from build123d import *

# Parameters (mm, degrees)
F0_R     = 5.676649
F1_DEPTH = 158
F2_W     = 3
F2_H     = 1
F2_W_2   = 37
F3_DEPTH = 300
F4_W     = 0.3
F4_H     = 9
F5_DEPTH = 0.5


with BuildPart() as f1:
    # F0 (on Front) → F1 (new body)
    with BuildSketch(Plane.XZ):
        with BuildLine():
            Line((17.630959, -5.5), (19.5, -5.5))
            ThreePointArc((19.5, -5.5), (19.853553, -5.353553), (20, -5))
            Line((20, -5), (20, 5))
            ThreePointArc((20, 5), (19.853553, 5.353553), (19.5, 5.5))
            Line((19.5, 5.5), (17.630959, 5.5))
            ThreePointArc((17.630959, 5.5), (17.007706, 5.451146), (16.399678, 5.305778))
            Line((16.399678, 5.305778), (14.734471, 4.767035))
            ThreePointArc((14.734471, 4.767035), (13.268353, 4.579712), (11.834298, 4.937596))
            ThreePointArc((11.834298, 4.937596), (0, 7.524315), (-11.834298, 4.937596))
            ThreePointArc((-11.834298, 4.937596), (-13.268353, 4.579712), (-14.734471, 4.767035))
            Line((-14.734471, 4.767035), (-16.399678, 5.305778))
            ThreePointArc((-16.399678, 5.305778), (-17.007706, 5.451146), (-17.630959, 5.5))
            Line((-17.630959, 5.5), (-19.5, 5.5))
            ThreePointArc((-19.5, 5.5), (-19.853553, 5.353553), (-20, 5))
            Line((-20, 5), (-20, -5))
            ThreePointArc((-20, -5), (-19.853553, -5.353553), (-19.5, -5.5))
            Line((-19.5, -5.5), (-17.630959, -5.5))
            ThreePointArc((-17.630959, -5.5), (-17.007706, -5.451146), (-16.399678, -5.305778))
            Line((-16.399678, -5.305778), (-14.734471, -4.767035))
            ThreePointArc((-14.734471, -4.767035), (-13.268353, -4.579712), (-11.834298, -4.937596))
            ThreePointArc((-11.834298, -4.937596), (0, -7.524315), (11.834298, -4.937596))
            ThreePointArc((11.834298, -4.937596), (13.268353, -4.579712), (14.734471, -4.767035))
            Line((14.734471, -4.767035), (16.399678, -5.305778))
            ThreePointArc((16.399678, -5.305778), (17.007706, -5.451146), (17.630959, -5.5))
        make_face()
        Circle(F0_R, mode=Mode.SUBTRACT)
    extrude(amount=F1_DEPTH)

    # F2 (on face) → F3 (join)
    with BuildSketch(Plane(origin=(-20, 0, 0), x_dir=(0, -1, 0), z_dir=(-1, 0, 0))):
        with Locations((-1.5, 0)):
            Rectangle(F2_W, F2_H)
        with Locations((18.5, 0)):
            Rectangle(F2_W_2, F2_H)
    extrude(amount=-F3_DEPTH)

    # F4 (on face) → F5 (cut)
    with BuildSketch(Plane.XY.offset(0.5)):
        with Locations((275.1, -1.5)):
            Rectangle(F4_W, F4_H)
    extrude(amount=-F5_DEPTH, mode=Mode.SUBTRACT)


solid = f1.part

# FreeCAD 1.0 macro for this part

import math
import FreeCAD as App
import Part
import Sketcher

doc = App.newDocument("Part")
body = doc.addObject("PartDesign::Body", "Body")

# Sketch on XZ plane
sketch1 = body.newObject("Sketcher::SketchObject", "Sketch")
sketch1.AttachmentSupport = (doc.getObject("XZ_Plane"), [""])
sketch1.MapMode = "FlatFace"
sketch1.addGeometry([
    Part.LineSegment(App.Vector(17.6, -5.5, 0), App.Vector(19.5, -5.5, 0)),  # 0
    Part.ArcOfCircle(Part.Circle(App.Vector(19.5, -5, 0), App.Vector(0, 0, 1), 0.5), math.radians(-90), math.radians(0)),  # 1
    Part.LineSegment(App.Vector(20, -5, 0), App.Vector(20, 5, 0)),  # 2
    Part.ArcOfCircle(Part.Circle(App.Vector(19.5, 5, 0), App.Vector(0, 0, 1), 0.5), math.radians(0), math.radians(90)),  # 3
    Part.LineSegment(App.Vector(19.5, 5.5, 0), App.Vector(17.6, 5.5, 0)),  # 4
    Part.ArcOfCircle(Part.Circle(App.Vector(17.6, 1.5, 0), App.Vector(0, 0, 1), 4), math.radians(90), math.radians(107.93)),  # 5
    Part.LineSegment(App.Vector(16.4, 5.3, 0), App.Vector(14.7, 4.8, 0)),  # 6
    Part.ArcOfCircle(Part.Circle(App.Vector(13.5, 8.6, 0), App.Vector(0, 0, 1), 4), math.radians(-115), math.radians(-72)),  # 7
    Part.ArcOfCircle(Part.Circle(App.Vector(0, -20.8, 0), App.Vector(0, 0, 1), 28.4), math.radians(65), math.radians(115)),  # 8
    Part.ArcOfCircle(Part.Circle(App.Vector(-13.5, 8.6, 0), App.Vector(0, 0, 1), 4), math.radians(-108), math.radians(-65)),  # 9
    Part.LineSegment(App.Vector(-14.7, 4.8, 0), App.Vector(-16.4, 5.3, 0)),  # 10
    Part.ArcOfCircle(Part.Circle(App.Vector(-17.6, 1.5, 0), App.Vector(0, 0, 1), 4), math.radians(72.07), math.radians(90)),  # 11
    Part.LineSegment(App.Vector(-17.6, 5.5, 0), App.Vector(-19.5, 5.5, 0)),  # 12
    Part.ArcOfCircle(Part.Circle(App.Vector(-19.5, 5, 0), App.Vector(0, 0, 1), 0.5), math.radians(90), math.radians(180)),  # 13
    Part.LineSegment(App.Vector(-20, 5, 0), App.Vector(-20, -5, 0)),  # 14
    Part.ArcOfCircle(Part.Circle(App.Vector(-19.5, -5, 0), App.Vector(0, 0, 1), 0.5), math.radians(-180), math.radians(-90)),  # 15
    Part.LineSegment(App.Vector(-19.5, -5.5, 0), App.Vector(-17.6, -5.5, 0)),  # 16
    Part.ArcOfCircle(Part.Circle(App.Vector(-17.6, -1.5, 0), App.Vector(0, 0, 1), 4), math.radians(-90), math.radians(-72.07)),  # 17
    Part.LineSegment(App.Vector(-16.4, -5.3, 0), App.Vector(-14.7, -4.8, 0)),  # 18
    Part.ArcOfCircle(Part.Circle(App.Vector(-13.5, -8.6, 0), App.Vector(0, 0, 1), 4), math.radians(65), math.radians(108)),  # 19
    Part.ArcOfCircle(Part.Circle(App.Vector(0, 20.8, 0), App.Vector(0, 0, 1), 28.4), math.radians(-115), math.radians(-65)),  # 20
    Part.ArcOfCircle(Part.Circle(App.Vector(13.5, -8.6, 0), App.Vector(0, 0, 1), 4), math.radians(72), math.radians(115)),  # 21
    Part.LineSegment(App.Vector(14.7, -4.8, 0), App.Vector(16.4, -5.3, 0)),  # 22
    Part.ArcOfCircle(Part.Circle(App.Vector(17.6, -1.5, 0), App.Vector(0, 0, 1), 4), math.radians(-107.93), math.radians(-90)),  # 23
    Part.Circle(App.Vector(0, 0, 0), App.Vector(0, 0, 1), 5.7),  # 24
], False)
sketch1.addConstraint([
    Sketcher.Constraint("Coincident", 0, 2, 1, 1),
    Sketcher.Constraint("Coincident", 1, 2, 2, 1),
    Sketcher.Constraint("Coincident", 2, 2, 3, 1),
    Sketcher.Constraint("Coincident", 3, 2, 4, 1),
    Sketcher.Constraint("Tangent", 4, 2, 5, 1),
    Sketcher.Constraint("Tangent", 5, 2, 6, 1),
    Sketcher.Constraint("Tangent", 6, 2, 7, 2),
    Sketcher.Constraint("Tangent", 7, 1, 8, 1),
    Sketcher.Constraint("Tangent", 8, 2, 9, 2),
    Sketcher.Constraint("Tangent", 9, 1, 10, 1),
    Sketcher.Constraint("Tangent", 10, 2, 11, 1),
    Sketcher.Constraint("Tangent", 11, 2, 12, 1),
    Sketcher.Constraint("Coincident", 12, 2, 13, 1),
    Sketcher.Constraint("Coincident", 13, 2, 14, 1),
    Sketcher.Constraint("Coincident", 14, 2, 15, 1),
    Sketcher.Constraint("Coincident", 15, 2, 16, 1),
    Sketcher.Constraint("Tangent", 16, 2, 17, 1),
    Sketcher.Constraint("Tangent", 17, 2, 18, 1),
    Sketcher.Constraint("Tangent", 18, 2, 19, 2),
    Sketcher.Constraint("Tangent", 19, 1, 20, 1),
    Sketcher.Constraint("Tangent", 20, 2, 21, 2),
    Sketcher.Constraint("Tangent", 21, 1, 22, 1),
    Sketcher.Constraint("Tangent", 22, 2, 23, 1),
    Sketcher.Constraint("Tangent", 23, 2, 0, 1),
    Sketcher.Constraint("Horizontal", 0),
    Sketcher.Constraint("Vertical", 2),
    Sketcher.Constraint("Horizontal", 4),
    Sketcher.Constraint("Horizontal", 12),
    Sketcher.Constraint("Vertical", 14),
    Sketcher.Constraint("Horizontal", 16),
    Sketcher.Constraint("Coincident", 24, 3, -1, 1),
    Sketcher.Constraint("Equal", 1, 3),
    Sketcher.Constraint("Equal", 7, 9),
    Sketcher.Constraint("Equal", 5, 11),
    Sketcher.Constraint("Equal", 3, 13),
    Sketcher.Constraint("Equal", 13, 15),
    Sketcher.Constraint("Equal", 11, 17),
    Sketcher.Constraint("Equal", 9, 19),
    Sketcher.Constraint("Equal", 8, 20),
    Sketcher.Constraint("Equal", 19, 21),
    Sketcher.Constraint("Equal", 17, 23),
    Sketcher.Constraint("Symmetric", 1, 3, 13, 3, -1, 1),
    Sketcher.Constraint("Symmetric", 5, 3, 17, 3, -1, 1),
    Sketcher.Constraint("Symmetric", 7, 3, 19, 3, -1, 1),
    Sketcher.Constraint("Symmetric", 9, 3, 21, 3, -1, 1),
    Sketcher.Constraint("Symmetric", 7, 3, 9, 3, -2),
    Sketcher.Constraint("Symmetric", 5, 3, 11, 3, -2),
    Sketcher.Constraint("Parallel", 10, 22),
    Sketcher.Constraint("Horizontal", 15, 3, 1, 2),
    Sketcher.Constraint("Horizontal", 13, 3, 2, 2),
    Sketcher.Constraint("Horizontal", 2, 2, 13, 2),
    Sketcher.Constraint("Horizontal", 1, 2, 14, 2),
    Sketcher.Constraint("Vertical", 3, 3, 0, 2),
    Sketcher.Constraint("Vertical", 0, 2, 3, 2),
    Sketcher.Constraint("Vertical", 15, 3, 12, 2),
    Sketcher.Constraint("Vertical", 12, 2, 15, 2),
    Sketcher.Constraint("Radius", 1, 0.500001),
    Sketcher.Constraint("DistanceY", 2, 1, 2, 2, 10.0),
    Sketcher.Constraint("DistanceX", -1, 1, 1, 2, 20.0),
    Sketcher.Constraint("Radius", 8, 28.36445),
    Sketcher.Constraint("Diameter", 24, 11.353298),
    Sketcher.Constraint("Radius", 5, 4.000005),
    Sketcher.Constraint("Radius", 7, 3.999995),
    Sketcher.Constraint("DistanceX", 0, 1, 0, 2, 1.869041),
    Sketcher.Constraint("DistanceX", 8, 2, -1, 1, 11.834298),
    Sketcher.Constraint("DistanceY", 5, 3, 7, 1, 3.437601),
])
pad1 = body.newObject("PartDesign::Pad", "Pad")
pad1.Profile = sketch1
pad1.Length = 158

# Sketch on YZ plane
sketch2 = body.newObject("Sketcher::SketchObject", "Sketch001")
sketch2.AttachmentSupport = (doc.getObject("YZ_Plane"), [""])
sketch2.MapMode = "FlatFace"
sketch2.AttachmentOffset = App.Placement(App.Vector(0, 0, -20), App.Rotation())
sketch2.addGeometry([
    Part.LineSegment(App.Vector(3, 0.5, 0), App.Vector(3, -0.5, 0)),
    Part.LineSegment(App.Vector(3, -0.5, 0), App.Vector(-37, -0.5, 0)),
    Part.LineSegment(App.Vector(-37, -0.5, 0), App.Vector(-37, 0.5, 0)),
    Part.LineSegment(App.Vector(-37, 0.5, 0), App.Vector(3, 0.5, 0)),
], False)
sketch2.addConstraint([
    Sketcher.Constraint("Coincident", 0, 2, 1, 1),
    Sketcher.Constraint("Coincident", 1, 2, 2, 1),
    Sketcher.Constraint("Coincident", 2, 2, 3, 1),
    Sketcher.Constraint("Coincident", 3, 2, 0, 1),
    Sketcher.Constraint("Vertical", 0),
    Sketcher.Constraint("Horizontal", 1),
    Sketcher.Constraint("Vertical", 2),
    Sketcher.Constraint("Horizontal", 3),
    Sketcher.Constraint("DistanceX", 1, 2, 1, 1, 40.0),
    Sketcher.Constraint("DistanceY", 0, 2, 0, 1, 1.0),
    Sketcher.Constraint("DistanceX", -1, 1, 0, 2, 3.0),
    Sketcher.Constraint("DistanceY", 0, 2, -1, 1, 0.5),
])
pad2 = body.newObject("PartDesign::Pad", "Pad001")
pad2.Profile = sketch2
pad2.Length = 300

# Sketch on XY plane
sketch3 = body.newObject("Sketcher::SketchObject", "Sketch002")
sketch3.AttachmentSupport = (doc.getObject("XY_Plane"), [""])
sketch3.MapMode = "FlatFace"
sketch3.AttachmentOffset = App.Placement(App.Vector(0, 0, 0.5), App.Rotation())
sketch3.addGeometry([
    Part.LineSegment(App.Vector(274.95, 3, 0), App.Vector(274.95, -6, 0)),
    Part.LineSegment(App.Vector(274.95, -6, 0), App.Vector(275.25, -6, 0)),
    Part.LineSegment(App.Vector(275.25, -6, 0), App.Vector(275.25, 3, 0)),
    Part.LineSegment(App.Vector(275.25, 3, 0), App.Vector(274.95, 3, 0)),
], False)
sketch3.addConstraint([
    Sketcher.Constraint("Coincident", 0, 2, 1, 1),
    Sketcher.Constraint("Coincident", 1, 2, 2, 1),
    Sketcher.Constraint("Coincident", 2, 2, 3, 1),
    Sketcher.Constraint("Coincident", 3, 2, 0, 1),
    Sketcher.Constraint("Vertical", 0),
    Sketcher.Constraint("Horizontal", 1),
    Sketcher.Constraint("Vertical", 2),
    Sketcher.Constraint("Horizontal", 3),
    Sketcher.Constraint("DistanceY", 0, 2, 0, 1, 9.0),
    Sketcher.Constraint("DistanceX", 1, 1, 1, 2, 0.3),
    Sketcher.Constraint("DistanceY", 0, 2, -1, 1, 6.0),
    Sketcher.Constraint("DistanceX", -1, 1, 0, 2, 274.95),
])
pocket1 = body.newObject("PartDesign::Pocket", "Pocket")
pocket1.Profile = sketch3
pocket1.Length = 0.5

doc.recompute()
